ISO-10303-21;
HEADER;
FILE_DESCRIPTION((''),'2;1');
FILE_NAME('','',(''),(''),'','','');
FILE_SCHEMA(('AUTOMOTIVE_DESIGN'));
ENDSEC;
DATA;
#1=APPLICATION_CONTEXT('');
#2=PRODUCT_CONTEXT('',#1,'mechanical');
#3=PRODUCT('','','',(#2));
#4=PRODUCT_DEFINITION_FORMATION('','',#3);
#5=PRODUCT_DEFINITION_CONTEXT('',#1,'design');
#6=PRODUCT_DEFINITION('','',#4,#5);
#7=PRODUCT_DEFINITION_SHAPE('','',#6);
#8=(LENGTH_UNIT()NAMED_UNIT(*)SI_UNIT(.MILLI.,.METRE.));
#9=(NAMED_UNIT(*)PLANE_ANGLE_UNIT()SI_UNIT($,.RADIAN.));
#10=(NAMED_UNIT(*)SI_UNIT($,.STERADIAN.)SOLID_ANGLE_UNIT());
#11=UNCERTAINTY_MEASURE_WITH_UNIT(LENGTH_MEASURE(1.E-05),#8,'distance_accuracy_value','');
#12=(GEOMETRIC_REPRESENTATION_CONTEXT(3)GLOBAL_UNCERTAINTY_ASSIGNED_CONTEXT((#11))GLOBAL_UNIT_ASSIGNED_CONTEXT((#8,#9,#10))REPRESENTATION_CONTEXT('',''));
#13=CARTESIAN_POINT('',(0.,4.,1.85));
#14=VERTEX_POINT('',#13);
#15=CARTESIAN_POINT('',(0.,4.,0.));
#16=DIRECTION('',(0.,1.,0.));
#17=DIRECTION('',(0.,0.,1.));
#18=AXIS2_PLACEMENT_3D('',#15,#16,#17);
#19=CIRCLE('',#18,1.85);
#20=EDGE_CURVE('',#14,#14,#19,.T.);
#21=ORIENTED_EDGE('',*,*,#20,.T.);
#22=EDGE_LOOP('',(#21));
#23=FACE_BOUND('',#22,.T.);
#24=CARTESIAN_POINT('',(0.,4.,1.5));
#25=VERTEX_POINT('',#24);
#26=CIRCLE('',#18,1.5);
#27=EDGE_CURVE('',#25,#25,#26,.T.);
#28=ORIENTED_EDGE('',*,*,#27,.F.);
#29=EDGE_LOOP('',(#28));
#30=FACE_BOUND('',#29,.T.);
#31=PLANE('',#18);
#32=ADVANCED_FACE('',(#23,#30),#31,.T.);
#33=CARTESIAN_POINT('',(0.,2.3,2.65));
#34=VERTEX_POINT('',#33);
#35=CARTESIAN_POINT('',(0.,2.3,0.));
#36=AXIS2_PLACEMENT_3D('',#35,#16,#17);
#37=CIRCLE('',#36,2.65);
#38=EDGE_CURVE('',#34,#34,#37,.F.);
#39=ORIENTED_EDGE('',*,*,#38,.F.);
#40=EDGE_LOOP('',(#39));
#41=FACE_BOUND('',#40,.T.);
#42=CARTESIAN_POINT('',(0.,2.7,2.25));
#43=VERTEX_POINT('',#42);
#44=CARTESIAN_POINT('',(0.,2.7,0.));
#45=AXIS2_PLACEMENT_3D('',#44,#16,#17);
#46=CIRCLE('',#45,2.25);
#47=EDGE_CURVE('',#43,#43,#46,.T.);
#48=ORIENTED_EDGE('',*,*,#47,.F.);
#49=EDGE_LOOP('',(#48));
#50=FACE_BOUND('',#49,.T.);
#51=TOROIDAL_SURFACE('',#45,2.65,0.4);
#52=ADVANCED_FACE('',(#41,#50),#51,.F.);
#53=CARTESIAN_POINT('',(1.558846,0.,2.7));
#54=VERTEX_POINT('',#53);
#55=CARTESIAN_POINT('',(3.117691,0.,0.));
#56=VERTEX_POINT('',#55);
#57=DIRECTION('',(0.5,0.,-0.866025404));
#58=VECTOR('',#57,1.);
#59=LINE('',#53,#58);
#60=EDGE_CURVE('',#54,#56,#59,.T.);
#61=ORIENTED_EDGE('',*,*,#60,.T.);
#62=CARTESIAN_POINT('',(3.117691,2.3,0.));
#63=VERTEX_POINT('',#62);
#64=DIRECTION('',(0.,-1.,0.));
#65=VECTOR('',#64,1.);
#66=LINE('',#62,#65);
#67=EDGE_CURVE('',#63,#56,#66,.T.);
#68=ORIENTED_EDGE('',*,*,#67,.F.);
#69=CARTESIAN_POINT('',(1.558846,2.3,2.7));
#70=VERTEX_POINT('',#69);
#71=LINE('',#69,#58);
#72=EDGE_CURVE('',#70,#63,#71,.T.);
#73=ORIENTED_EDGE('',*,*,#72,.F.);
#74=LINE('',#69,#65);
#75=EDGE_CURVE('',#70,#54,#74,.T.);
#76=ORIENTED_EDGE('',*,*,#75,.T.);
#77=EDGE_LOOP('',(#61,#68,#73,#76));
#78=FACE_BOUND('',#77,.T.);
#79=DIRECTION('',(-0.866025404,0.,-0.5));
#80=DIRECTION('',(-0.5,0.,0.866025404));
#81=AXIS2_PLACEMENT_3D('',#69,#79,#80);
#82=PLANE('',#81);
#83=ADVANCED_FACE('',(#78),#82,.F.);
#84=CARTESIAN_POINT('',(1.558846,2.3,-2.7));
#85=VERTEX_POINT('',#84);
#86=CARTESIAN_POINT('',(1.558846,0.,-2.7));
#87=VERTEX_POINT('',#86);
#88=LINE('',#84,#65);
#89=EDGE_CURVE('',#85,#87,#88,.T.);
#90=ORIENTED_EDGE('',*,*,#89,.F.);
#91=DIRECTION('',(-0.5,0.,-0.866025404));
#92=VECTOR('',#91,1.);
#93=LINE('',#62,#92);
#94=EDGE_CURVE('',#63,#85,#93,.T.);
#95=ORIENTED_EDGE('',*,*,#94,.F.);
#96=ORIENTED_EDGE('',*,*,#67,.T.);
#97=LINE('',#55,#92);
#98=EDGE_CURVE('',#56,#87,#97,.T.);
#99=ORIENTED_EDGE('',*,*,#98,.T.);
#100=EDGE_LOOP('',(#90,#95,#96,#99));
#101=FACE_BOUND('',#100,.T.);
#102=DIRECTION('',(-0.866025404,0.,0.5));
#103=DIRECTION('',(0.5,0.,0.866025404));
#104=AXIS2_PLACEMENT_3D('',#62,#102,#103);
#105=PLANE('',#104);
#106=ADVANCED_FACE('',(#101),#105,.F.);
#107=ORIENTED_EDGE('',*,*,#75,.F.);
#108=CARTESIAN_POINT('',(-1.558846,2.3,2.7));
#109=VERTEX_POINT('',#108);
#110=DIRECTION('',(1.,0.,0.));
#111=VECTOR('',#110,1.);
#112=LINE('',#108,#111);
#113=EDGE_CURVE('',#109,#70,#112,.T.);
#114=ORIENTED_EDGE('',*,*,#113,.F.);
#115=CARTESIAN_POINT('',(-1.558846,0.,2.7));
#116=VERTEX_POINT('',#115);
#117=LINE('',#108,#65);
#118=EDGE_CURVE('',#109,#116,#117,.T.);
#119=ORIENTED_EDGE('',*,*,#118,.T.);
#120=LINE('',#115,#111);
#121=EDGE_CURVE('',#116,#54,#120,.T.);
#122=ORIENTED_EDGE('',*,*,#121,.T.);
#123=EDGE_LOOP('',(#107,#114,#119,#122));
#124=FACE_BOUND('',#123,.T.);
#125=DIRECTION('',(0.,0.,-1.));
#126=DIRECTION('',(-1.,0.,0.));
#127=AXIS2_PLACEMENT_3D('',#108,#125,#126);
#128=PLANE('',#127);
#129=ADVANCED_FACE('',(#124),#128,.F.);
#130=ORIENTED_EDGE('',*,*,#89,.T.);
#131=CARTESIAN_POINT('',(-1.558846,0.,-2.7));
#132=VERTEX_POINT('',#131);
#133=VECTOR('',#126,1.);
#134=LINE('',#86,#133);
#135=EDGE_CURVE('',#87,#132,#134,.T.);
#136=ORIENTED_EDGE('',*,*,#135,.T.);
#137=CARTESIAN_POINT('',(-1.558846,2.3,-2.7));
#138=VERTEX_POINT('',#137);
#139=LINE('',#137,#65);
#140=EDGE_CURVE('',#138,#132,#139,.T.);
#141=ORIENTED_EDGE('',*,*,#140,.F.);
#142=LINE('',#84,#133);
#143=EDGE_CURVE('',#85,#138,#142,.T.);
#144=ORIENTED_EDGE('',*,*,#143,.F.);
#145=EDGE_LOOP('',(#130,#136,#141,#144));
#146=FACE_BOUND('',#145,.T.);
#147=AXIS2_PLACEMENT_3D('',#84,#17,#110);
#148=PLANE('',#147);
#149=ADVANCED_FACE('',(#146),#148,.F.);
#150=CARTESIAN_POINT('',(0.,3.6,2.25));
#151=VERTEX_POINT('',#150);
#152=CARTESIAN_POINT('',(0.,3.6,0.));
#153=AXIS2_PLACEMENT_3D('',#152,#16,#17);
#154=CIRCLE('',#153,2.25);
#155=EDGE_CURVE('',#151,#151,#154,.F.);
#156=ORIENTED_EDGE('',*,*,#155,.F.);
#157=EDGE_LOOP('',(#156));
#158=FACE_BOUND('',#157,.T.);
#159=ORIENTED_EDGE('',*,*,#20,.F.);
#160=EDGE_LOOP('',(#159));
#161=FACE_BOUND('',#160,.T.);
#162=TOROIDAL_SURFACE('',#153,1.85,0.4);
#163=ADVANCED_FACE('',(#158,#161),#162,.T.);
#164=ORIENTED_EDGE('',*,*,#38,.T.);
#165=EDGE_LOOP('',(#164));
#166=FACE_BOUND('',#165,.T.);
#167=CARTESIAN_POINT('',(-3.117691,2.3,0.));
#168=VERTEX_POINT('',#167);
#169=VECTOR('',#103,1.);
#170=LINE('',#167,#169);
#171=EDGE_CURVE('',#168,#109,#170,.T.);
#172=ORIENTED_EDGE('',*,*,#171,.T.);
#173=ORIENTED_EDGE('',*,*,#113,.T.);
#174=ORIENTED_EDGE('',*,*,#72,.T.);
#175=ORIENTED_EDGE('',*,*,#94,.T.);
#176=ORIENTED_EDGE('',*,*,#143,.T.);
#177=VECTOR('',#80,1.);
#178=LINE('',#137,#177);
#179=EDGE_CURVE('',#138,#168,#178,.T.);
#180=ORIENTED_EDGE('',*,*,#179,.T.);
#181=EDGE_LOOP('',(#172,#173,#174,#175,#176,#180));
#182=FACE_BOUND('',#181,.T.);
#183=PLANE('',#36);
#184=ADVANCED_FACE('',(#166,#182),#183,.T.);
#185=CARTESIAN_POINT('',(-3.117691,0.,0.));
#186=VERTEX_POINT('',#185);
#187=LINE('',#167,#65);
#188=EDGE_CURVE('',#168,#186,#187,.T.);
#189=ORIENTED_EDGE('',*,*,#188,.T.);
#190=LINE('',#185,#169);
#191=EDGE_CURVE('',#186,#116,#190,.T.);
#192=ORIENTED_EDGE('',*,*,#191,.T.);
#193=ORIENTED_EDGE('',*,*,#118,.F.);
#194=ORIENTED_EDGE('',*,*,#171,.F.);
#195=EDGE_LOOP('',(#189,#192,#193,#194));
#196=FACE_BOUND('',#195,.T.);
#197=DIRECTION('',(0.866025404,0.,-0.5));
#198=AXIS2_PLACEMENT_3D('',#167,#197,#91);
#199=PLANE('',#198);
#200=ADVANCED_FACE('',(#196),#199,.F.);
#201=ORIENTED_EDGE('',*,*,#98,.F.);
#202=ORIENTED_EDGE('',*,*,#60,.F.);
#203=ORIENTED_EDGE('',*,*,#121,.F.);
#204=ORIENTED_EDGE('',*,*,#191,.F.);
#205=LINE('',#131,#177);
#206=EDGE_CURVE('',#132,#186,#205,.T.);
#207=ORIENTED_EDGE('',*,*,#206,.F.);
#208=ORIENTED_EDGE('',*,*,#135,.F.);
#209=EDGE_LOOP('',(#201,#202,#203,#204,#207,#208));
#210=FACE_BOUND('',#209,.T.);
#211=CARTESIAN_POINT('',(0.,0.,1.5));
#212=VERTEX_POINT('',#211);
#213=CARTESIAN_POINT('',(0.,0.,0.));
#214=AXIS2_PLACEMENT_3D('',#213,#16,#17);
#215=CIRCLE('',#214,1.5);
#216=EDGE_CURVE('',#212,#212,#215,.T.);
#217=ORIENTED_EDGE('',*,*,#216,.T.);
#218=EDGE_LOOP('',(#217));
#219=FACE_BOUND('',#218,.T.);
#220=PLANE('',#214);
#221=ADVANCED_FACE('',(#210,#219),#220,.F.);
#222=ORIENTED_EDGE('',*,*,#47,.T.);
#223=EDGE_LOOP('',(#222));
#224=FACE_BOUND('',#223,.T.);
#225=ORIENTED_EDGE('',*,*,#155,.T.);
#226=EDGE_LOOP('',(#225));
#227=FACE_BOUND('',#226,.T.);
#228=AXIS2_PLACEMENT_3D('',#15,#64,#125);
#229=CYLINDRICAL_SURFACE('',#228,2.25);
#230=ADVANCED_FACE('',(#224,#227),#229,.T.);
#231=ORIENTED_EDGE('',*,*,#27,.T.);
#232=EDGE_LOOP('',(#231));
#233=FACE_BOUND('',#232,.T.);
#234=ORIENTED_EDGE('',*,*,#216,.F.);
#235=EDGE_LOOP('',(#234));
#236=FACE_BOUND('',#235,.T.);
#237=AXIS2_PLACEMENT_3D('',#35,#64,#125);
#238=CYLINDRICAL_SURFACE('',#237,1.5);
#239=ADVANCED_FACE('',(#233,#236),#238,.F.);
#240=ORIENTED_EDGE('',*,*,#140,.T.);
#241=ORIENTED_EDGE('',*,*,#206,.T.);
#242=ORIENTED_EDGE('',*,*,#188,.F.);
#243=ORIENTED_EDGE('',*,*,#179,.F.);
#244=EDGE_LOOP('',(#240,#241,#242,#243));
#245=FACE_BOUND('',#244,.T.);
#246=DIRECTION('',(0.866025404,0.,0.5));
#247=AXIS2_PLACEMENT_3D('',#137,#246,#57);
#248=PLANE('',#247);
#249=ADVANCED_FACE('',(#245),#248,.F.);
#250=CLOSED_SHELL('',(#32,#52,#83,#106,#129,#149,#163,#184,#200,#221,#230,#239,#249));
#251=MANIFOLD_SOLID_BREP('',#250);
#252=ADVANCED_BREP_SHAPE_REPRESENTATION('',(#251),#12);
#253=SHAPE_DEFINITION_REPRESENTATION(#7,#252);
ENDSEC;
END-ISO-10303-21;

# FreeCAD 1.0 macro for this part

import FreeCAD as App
import Part
import Sketcher

V = App.Vector
Q = App.Units.Quantity


def edges_at(feature, points):
    """Names of the edges that pass closest to the given points."""
    edges = feature.Shape.Edges
    near = lambda p: min(range(len(edges)), key=lambda i: edges[i].distToShape(Part.Vertex(*p))[0])
    return sorted({f"Edge{near(p) + 1}" for p in points})


def add_polygon(sketch, points):
    """Adds a closed chain of lines whose ends are joined by coincident constraints."""
    first, n = sketch.GeometryCount, len(points)
    for a, b in zip(points, points[1:] + points[:1]):
        sketch.addGeometry(Part.LineSegment(App.Vector(*a, 0), App.Vector(*b, 0)), False)
    for i in range(n):
        sketch.addConstraint(Sketcher.Constraint("Coincident", first + i, 2, first + (i + 1) % n, 1))

doc = App.newDocument("Part")
body = doc.addObject("PartDesign::Body", "Body")

# Sketch on XZ plane
sketch1 = body.newObject("Sketcher::SketchObject", "Sketch")
sketch1.AttachmentSupport = (doc.getObject("XZ_Plane"), [""])
sketch1.MapMode = "FlatFace"
add_polygon(sketch1, [(3.1, 0), (1.6, -2.7), (-1.6, -2.7), (-3.1, 0), (-1.6, 2.7), (1.6, 2.7)])  # lines 0-5
sketch1.addGeometry(Part.Circle(V(0, 0, 0), V(0, 0, 1), 1.5), False)  # 6
sketch1.addConstraint([
    Sketcher.Constraint("Horizontal", 1),
    Sketcher.Constraint("Horizontal", 4),
    Sketcher.Constraint("Coincident", 6, 3, -1, 1),
    Sketcher.Constraint("Symmetric", 0, 2, 3, 2, -1, 1),
    Sketcher.Constraint("Symmetric", 2, 2, 5, 2, -1, 1),
    Sketcher.Constraint("PointOnObject", 2, 2, -1),
    Sketcher.Constraint("Parallel", 2, 5),
    Sketcher.Constraint("Vertical", 1, 2, 3, 2),
    Sketcher.Constraint("Diameter", 6, Q("3 mm")),
    Sketcher.Constraint("Angle", 0, Q("-120 deg")),
    Sketcher.Constraint("DistanceY", 0, 2, -1, 1, Q("2.7 mm")),
    Sketcher.Constraint("DistanceX", 1, 2, 1, 1, Q("3.117691 mm")),
])
pad1 = body.newObject("PartDesign::Pad", "Pad")
pad1.Profile = sketch1
pad1.Length = 2.3
pad1.Reversed = True

# Sketch on XZ plane
sketch2 = body.newObject("Sketcher::SketchObject", "Sketch001")
sketch2.AttachmentSupport = (doc.getObject("XZ_Plane"), [""])
sketch2.MapMode = "FlatFace"
sketch2.AttachmentOffset = App.Placement(V(0, 0, -2.3), App.Rotation())
sketch2.addGeometry([
    Part.Circle(V(0, 0, 0), V(0, 0, 1), 2.2),
    Part.Circle(V(0, 0, 0), V(0, 0, 1), 1.5),
], False)
sketch2.addConstraint([
    Sketcher.Constraint("Coincident", 0, 3, -1, 1),
    Sketcher.Constraint("Coincident", 1, 3, -1, 1),
    Sketcher.Constraint("Diameter", 1, Q("3 mm")),
    Sketcher.Constraint("Diameter", 0, Q("4.5 mm")),
])
pad2 = body.newObject("PartDesign::Pad", "Pad001")
pad2.Profile = sketch2
pad2.Length = 1.7
pad2.Reversed = True
doc.recompute()

fillet = body.newObject("PartDesign::Fillet", "Fillet")
fillet.Base = (pad2, edges_at(pad2, [(-2.25, 2.3, 0), (-2.25, 4, 0)]))
fillet.Radius = 0.4

doc.recompute()
